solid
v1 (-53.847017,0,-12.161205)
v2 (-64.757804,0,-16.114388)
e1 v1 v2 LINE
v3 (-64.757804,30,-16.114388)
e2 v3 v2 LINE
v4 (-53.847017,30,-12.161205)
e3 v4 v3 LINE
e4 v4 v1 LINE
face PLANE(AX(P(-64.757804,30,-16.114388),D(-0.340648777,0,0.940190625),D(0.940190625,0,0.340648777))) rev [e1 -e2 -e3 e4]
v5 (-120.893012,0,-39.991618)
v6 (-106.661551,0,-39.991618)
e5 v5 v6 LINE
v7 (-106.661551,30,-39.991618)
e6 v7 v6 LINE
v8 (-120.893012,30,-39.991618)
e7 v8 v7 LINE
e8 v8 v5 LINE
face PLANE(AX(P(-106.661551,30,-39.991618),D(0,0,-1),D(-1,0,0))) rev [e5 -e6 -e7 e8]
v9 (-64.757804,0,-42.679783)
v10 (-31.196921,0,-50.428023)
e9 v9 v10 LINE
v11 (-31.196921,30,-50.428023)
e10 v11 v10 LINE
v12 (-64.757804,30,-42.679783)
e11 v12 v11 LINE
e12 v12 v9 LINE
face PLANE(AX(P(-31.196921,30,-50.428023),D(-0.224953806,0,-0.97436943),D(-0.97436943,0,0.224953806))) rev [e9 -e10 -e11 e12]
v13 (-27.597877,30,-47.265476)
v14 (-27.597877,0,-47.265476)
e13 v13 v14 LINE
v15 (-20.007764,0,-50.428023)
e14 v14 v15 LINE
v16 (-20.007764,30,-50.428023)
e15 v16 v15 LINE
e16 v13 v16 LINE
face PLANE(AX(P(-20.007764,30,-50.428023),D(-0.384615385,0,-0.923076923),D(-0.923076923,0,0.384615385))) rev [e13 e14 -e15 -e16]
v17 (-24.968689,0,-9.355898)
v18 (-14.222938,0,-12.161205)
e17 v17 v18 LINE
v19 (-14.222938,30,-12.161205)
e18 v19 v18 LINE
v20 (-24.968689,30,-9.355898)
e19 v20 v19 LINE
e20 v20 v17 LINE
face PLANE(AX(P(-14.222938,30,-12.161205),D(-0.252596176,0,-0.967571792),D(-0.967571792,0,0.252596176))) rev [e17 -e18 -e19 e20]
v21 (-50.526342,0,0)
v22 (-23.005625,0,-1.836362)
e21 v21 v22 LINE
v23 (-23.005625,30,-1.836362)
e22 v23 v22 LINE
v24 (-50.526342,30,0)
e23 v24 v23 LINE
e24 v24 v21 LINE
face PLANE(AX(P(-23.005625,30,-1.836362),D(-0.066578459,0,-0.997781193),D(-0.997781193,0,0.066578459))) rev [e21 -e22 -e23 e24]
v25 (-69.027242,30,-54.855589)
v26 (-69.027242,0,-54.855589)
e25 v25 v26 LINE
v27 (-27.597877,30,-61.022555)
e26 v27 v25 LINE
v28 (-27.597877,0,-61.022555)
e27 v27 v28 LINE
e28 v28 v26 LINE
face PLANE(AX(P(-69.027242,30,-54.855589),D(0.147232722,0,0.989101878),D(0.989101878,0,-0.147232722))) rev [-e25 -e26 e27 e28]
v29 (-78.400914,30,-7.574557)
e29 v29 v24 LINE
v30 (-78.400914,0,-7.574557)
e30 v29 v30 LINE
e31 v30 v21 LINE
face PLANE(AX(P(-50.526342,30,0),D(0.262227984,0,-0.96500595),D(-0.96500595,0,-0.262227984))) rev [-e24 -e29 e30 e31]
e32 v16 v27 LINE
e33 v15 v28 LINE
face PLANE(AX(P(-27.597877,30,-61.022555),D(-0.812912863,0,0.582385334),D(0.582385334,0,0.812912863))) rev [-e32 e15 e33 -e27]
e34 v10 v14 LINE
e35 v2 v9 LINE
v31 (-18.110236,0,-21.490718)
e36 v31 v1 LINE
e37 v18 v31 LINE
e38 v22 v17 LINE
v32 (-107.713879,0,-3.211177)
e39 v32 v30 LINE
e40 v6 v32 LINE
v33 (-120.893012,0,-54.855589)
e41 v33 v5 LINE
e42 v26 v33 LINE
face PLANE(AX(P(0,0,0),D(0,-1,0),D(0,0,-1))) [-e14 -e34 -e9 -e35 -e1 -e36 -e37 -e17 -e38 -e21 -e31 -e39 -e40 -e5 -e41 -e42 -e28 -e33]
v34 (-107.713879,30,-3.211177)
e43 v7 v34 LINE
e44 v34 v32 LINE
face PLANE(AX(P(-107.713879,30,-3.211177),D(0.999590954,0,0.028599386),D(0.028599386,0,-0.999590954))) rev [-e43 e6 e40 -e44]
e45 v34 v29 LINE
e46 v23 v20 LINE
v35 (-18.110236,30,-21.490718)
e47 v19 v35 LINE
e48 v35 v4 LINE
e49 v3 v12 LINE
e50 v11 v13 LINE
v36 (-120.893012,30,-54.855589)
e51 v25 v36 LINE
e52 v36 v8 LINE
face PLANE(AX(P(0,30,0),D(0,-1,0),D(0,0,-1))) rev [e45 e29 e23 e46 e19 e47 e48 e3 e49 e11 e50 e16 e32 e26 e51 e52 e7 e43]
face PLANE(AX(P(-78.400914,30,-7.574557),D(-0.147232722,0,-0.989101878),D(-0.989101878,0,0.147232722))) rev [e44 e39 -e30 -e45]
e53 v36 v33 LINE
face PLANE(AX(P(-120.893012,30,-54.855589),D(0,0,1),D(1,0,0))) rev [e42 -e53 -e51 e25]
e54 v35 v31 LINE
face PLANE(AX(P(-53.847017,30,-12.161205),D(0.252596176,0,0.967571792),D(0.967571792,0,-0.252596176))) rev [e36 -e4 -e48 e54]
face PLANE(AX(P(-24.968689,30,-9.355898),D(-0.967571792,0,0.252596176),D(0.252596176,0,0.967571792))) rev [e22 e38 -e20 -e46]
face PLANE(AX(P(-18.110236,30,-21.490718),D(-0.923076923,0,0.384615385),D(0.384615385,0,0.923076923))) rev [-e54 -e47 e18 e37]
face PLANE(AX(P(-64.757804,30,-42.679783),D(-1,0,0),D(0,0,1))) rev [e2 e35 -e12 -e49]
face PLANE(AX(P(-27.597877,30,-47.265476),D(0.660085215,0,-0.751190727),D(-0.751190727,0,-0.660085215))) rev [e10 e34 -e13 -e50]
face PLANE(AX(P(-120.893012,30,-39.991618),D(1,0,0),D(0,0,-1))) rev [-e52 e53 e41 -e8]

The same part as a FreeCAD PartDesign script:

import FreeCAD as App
import Part
import Sketcher

doc = App.newDocument("Part")
body = doc.addObject("PartDesign::Body", "Body")

# Sketch on XZ plane
sketch1 = doc.addObject("Sketcher::SketchObject", "Sketch")
body.addObject(sketch1)
sketch1.AttachmentSupport = (doc.XZ_Plane, [""])
sketch1.MapMode = "FlatFace"
sketch1.addGeometry(Part.LineSegment(App.Vector(-69, -54.9, 0), App.Vector(-120.9, -54.9, 0)), False)
sketch1.addGeometry(Part.LineSegment(App.Vector(-120.9, -54.9, 0), App.Vector(-120.9, -40, 0)), False)
sketch1.addGeometry(Part.LineSegment(App.Vector(-120.9, -40, 0), App.Vector(-106.7, -40, 0)), False)
sketch1.addGeometry(Part.LineSegment(App.Vector(-106.7, -40, 0), App.Vector(-107.7, -3.2, 0)), False)
sketch1.addGeometry(Part.LineSegment(App.Vector(-107.7, -3.2, 0), App.Vector(-78.4, -7.6, 0)), False)
sketch1.addGeometry(Part.LineSegment(App.Vector(-78.4, -7.6, 0), App.Vector(-50.5, 0, 0)), False)
sketch1.addGeometry(Part.LineSegment(App.Vector(-50.5, 0, 0), App.Vector(-23, -1.8, 0)), False)
sketch1.addGeometry(Part.LineSegment(App.Vector(-23, -1.8, 0), App.Vector(-25, -9.4, 0)), False)
sketch1.addGeometry(Part.LineSegment(App.Vector(-25, -9.4, 0), App.Vector(-14.2, -12.2, 0)), False)
sketch1.addGeometry(Part.LineSegment(App.Vector(-14.2, -12.2, 0), App.Vector(-18.1, -21.5, 0)), False)
sketch1.addGeometry(Part.LineSegment(App.Vector(-18.1, -21.5, 0), App.Vector(-53.8, -12.2, 0)), False)
sketch1.addGeometry(Part.LineSegment(App.Vector(-53.8, -12.2, 0), App.Vector(-64.8, -16.1, 0)), False)
sketch1.addGeometry(Part.LineSegment(App.Vector(-64.8, -16.1, 0), App.Vector(-64.8, -42.7, 0)), False)
sketch1.addGeometry(Part.LineSegment(App.Vector(-64.8, -42.7, 0), App.Vector(-31.2, -50.4, 0)), False)
sketch1.addGeometry(Part.LineSegment(App.Vector(-31.2, -50.4, 0), App.Vector(-27.6, -47.3, 0)), False)
sketch1.addGeometry(Part.LineSegment(App.Vector(-27.6, -47.3, 0), App.Vector(-20, -50.4, 0)), False)
sketch1.addGeometry(Part.LineSegment(App.Vector(-20, -50.4, 0), App.Vector(-27.6, -61, 0)), False)
sketch1.addGeometry(Part.LineSegment(App.Vector(-27.6, -61, 0), App.Vector(-69, -54.9, 0)), False)
sketch1.addConstraint(Sketcher.Constraint("Coincident", 0, 2, 1, 1))
sketch1.addConstraint(Sketcher.Constraint("Coincident", 1, 2, 2, 1))
sketch1.addConstraint(Sketcher.Constraint("Coincident", 2, 2, 3, 1))
sketch1.addConstraint(Sketcher.Constraint("Coincident", 3, 2, 4, 1))
sketch1.addConstraint(Sketcher.Constraint("Coincident", 4, 2, 5, 1))
sketch1.addConstraint(Sketcher.Constraint("Coincident", 5, 2, 6, 1))
sketch1.addConstraint(Sketcher.Constraint("Coincident", 6, 2, 7, 1))
sketch1.addConstraint(Sketcher.Constraint("Coincident", 7, 2, 8, 1))
sketch1.addConstraint(Sketcher.Constraint("Coincident", 8, 2, 9, 1))
sketch1.addConstraint(Sketcher.Constraint("Coincident", 9, 2, 10, 1))
sketch1.addConstraint(Sketcher.Constraint("Coincident", 10, 2, 11, 1))
sketch1.addConstraint(Sketcher.Constraint("Coincident", 11, 2, 12, 1))
sketch1.addConstraint(Sketcher.Constraint("Coincident", 12, 2, 13, 1))
sketch1.addConstraint(Sketcher.Constraint("Coincident", 13, 2, 14, 1))
sketch1.addConstraint(Sketcher.Constraint("Coincident", 14, 2, 15, 1))
sketch1.addConstraint(Sketcher.Constraint("Coincident", 15, 2, 16, 1))
sketch1.addConstraint(Sketcher.Constraint("Coincident", 16, 2, 17, 1))
sketch1.addConstraint(Sketcher.Constraint("Coincident", 17, 2, 0, 1))
sketch1.addConstraint(Sketcher.Constraint("Horizontal", 0))
sketch1.addConstraint(Sketcher.Constraint("Vertical", 1))
sketch1.addConstraint(Sketcher.Constraint("Horizontal", 2))
sketch1.addConstraint(Sketcher.Constraint("Vertical", 12))
sketch1.addConstraint(Sketcher.Constraint("PointOnObject", 5, 2, -1))
sketch1.addConstraint(Sketcher.Constraint("Perpendicular", 7, 8))
sketch1.addConstraint(Sketcher.Constraint("Parallel", 8, 10))
sketch1.addConstraint(Sketcher.Constraint("Perpendicular", 9, 15))
sketch1.addConstraint(Sketcher.Constraint("Parallel", 4, 17))
sketch1.addConstraint(Sketcher.Constraint("Horizontal", 8, 2, 10, 2))
sketch1.addConstraint(Sketcher.Constraint("Horizontal", 13, 2, 15, 2))
sketch1.addConstraint(Sketcher.Constraint("Vertical", 14, 2, 16, 2))
sketch1.addConstraint(Sketcher.Constraint("Distance", 10, 36.9345))
sketch1.addConstraint(Sketcher.Constraint("Distance", 16, 13.032802))
sketch1.addConstraint(Sketcher.Constraint("DistanceX", 0, 2, 0, 1, 51.86577))
sketch1.addConstraint(Sketcher.Constraint("DistanceX", 2, 1, 2, 2, 14.231461))
sketch1.addConstraint(Sketcher.Constraint("DistanceY", 1, 1, 1, 2, 14.863971))
sketch1.addConstraint(Sketcher.Constraint("DistanceY", 7, 2, -1, 1, 9.355898))
sketch1.addConstraint(Sketcher.Constraint("DistanceX", 1, 2, 4, 2, 42.492098))
sketch1.addConstraint(Sketcher.Constraint("DistanceY", 17, 2, 11, 2, 38.7412))
sketch1.addConstraint(Sketcher.Constraint("Distance", 4, 29.635942))
sketch1.addConstraint(Sketcher.Constraint("Distance", 5, 28.885388))
sketch1.addConstraint(Sketcher.Constraint("Distance", 14, 4.791119))
sketch1.addConstraint(Sketcher.Constraint("DistanceY", 12, 2, 12, 1, 26.565395))
sketch1.addConstraint(Sketcher.Constraint("DistanceY", 0, 2, -1, 1, 54.855589))
sketch1.addConstraint(Sketcher.Constraint("DistanceX", 2, 2, -1, 1, 106.661551))
sketch1.addConstraint(Sketcher.Constraint("DistanceX", 3, 2, -1, 1, 107.713879))
sketch1.addConstraint(Sketcher.Constraint("DistanceY", 6, 2, -1, 1, 1.836362))
sketch1.addConstraint(Sketcher.Constraint("DistanceX", 7, 2, -1, 1, 24.968689))
sketch1.addConstraint(Sketcher.Constraint("DistanceX", 8, 2, -1, 1, 14.222938))
sketch1.addConstraint(Sketcher.Constraint("DistanceY", 9, 2, -1, 1, 21.490718))
sketch1.addConstraint(Sketcher.Constraint("DistanceX", 13, 2, -1, 1, 31.196921))
sketch1.addConstraint(Sketcher.Constraint("DistanceY", 2, 2, 3, 2, 36.780441))
sketch1.addConstraint(Sketcher.Constraint("DistanceX", 6, 2, 9, 2, 4.895389))
sketch1.addConstraint(Sketcher.Constraint("DistanceX", 4, 2, 11, 2, 13.64311))
sketch1.addConstraint(Sketcher.Constraint("DistanceY", 13, 2, 12, 2, 7.74824))
pad1 = doc.addObject("PartDesign::Pad", "Pad")
body.addObject(pad1)
pad1.Profile = sketch1
pad1.Length = 30
pad1.Reversed = True

doc.recompute()
